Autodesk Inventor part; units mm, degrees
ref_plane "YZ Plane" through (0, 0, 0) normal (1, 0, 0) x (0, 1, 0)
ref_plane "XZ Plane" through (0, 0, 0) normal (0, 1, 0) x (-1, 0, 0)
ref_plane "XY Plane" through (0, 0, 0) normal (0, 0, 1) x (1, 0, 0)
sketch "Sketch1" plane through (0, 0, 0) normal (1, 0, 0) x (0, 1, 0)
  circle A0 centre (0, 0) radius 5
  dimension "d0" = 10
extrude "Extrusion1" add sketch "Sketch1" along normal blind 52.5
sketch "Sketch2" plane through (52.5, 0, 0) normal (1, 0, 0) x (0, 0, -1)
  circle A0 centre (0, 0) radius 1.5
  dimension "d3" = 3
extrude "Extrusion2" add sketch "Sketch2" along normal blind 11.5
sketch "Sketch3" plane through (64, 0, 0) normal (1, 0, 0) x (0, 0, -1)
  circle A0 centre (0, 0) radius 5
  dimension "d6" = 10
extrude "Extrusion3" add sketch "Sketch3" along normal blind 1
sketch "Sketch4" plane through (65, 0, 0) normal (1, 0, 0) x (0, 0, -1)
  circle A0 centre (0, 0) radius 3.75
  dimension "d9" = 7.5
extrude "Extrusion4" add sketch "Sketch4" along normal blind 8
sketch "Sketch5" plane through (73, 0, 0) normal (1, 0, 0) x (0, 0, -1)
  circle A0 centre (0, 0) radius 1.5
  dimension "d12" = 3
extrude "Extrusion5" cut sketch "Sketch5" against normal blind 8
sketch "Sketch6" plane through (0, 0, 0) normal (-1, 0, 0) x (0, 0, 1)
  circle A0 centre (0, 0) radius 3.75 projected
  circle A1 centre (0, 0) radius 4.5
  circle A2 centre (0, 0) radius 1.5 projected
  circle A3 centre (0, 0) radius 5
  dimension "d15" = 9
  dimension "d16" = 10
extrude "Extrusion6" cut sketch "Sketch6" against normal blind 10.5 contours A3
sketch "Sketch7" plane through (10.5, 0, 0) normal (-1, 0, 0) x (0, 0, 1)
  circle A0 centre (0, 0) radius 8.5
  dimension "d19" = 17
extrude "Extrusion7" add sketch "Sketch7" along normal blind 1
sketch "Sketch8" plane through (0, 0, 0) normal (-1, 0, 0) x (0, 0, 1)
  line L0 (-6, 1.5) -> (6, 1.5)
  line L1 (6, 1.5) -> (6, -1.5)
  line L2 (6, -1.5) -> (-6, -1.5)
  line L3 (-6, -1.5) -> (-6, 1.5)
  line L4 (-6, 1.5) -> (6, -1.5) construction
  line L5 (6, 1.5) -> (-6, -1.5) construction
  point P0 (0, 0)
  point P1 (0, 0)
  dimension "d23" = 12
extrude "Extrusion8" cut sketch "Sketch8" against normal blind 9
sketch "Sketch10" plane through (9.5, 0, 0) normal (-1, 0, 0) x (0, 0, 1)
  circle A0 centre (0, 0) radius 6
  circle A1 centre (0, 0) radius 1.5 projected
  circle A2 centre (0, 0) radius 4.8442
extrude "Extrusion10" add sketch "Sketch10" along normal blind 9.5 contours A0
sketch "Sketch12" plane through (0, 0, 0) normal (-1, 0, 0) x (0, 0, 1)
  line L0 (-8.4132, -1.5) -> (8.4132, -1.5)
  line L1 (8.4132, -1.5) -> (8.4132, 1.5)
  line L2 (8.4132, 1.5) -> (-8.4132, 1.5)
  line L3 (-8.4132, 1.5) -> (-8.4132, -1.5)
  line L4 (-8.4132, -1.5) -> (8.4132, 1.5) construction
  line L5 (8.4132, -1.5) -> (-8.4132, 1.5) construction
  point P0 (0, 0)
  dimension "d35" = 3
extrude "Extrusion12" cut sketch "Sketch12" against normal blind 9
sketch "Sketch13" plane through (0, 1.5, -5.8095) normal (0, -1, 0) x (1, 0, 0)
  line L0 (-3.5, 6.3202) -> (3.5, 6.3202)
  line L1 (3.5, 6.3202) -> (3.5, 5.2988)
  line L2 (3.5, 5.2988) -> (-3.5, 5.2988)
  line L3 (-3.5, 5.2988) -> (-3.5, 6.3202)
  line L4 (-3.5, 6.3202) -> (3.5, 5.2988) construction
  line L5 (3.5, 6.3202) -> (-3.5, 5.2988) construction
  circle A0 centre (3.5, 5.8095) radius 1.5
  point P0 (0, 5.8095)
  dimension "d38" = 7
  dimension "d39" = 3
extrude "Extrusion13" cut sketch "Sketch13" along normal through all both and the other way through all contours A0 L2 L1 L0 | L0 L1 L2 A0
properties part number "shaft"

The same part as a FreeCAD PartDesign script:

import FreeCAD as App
import Part
import Sketcher
from FreeCAD import Vector
Q = App.Units.Quantity


def add_polygon(sketch, points):
    """Adds a closed chain of lines whose ends are joined by coincident constraints."""
    first, n = sketch.GeometryCount, len(points)
    for a, b in zip(points, points[1:] + points[:1]):
        sketch.addGeometry(Part.LineSegment(App.Vector(*a, 0), App.Vector(*b, 0)), False)
    for i in range(n):
        sketch.addConstraint(Sketcher.Constraint("Coincident", first + i, 2, first + (i + 1) % n, 1))

doc = App.newDocument("Part")
body = doc.addObject("PartDesign::Body", "Body")

sketch1 = body.newObject("Sketcher::SketchObject", "Sketch")
sketch1.AttachmentSupport = (doc.getObject("YZ_Plane"), [""])
sketch1.MapMode = "FlatFace"
sketch1.addGeometry(Part.Circle(Vector(0, 0, 0), Vector(0, 0, 1), 5), False)
sketch1.addConstraint(Sketcher.Constraint("Coincident", 0, 3, -1, 1))
sketch1.addConstraint(Sketcher.Constraint("Diameter", 0, Q("10 mm")))
pad1 = body.newObject("PartDesign::Pad", "Pad")
pad1.Profile = sketch1
pad1.Length = 52.5

sketch2 = body.newObject("Sketcher::SketchObject", "Sketch001")
sketch2.AttachmentSupport = (doc.getObject("YZ_Plane"), [""])
sketch2.MapMode = "FlatFace"
sketch2.AttachmentOffset = App.Placement(Vector(0, 0, 52.5), App.Rotation())
sketch2.addGeometry(Part.Circle(Vector(0, 0, 0), Vector(0, 0, 1), 1.5), False)
sketch2.addConstraint(Sketcher.Constraint("Coincident", 0, 3, -1, 1))
sketch2.addConstraint(Sketcher.Constraint("Diameter", 0, Q("3 mm")))
pad2 = body.newObject("PartDesign::Pad", "Pad001")
pad2.Profile = sketch2
pad2.Length = 11.5

sketch3 = body.newObject("Sketcher::SketchObject", "Sketch002")
sketch3.AttachmentSupport = (doc.getObject("YZ_Plane"), [""])
sketch3.MapMode = "FlatFace"
sketch3.AttachmentOffset = App.Placement(Vector(0, 0, 64), App.Rotation())
sketch3.addGeometry(Part.Circle(Vector(0, 0, 0), Vector(0, 0, 1), 5), False)
sketch3.addConstraint(Sketcher.Constraint("Coincident", 0, 3, -1, 1))
sketch3.addConstraint(Sketcher.Constraint("Diameter", 0, Q("10 mm")))
pad3 = body.newObject("PartDesign::Pad", "Pad002")
pad3.Profile = sketch3
pad3.Length = 1

sketch4 = body.newObject("Sketcher::SketchObject", "Sketch003")
sketch4.AttachmentSupport = (doc.getObject("YZ_Plane"), [""])
sketch4.MapMode = "FlatFace"
sketch4.AttachmentOffset = App.Placement(Vector(0, 0, 65), App.Rotation())
sketch4.addGeometry(Part.Circle(Vector(0, 0, 0), Vector(0, 0, 1), 3.75), False)
sketch4.addConstraint(Sketcher.Constraint("Coincident", 0, 3, -1, 1))
sketch4.addConstraint(Sketcher.Constraint("Diameter", 0, Q("7.5 mm")))
pad4 = body.newObject("PartDesign::Pad", "Pad003")
pad4.Profile = sketch4
pad4.Length = 8

sketch5 = body.newObject("Sketcher::SketchObject", "Sketch004")
sketch5.AttachmentSupport = (doc.getObject("YZ_Plane"), [""])
sketch5.MapMode = "FlatFace"
sketch5.AttachmentOffset = App.Placement(Vector(0, 0, 73), App.Rotation())
sketch5.addGeometry(Part.Circle(Vector(0, 0, 0), Vector(0, 0, 1), 1.5), False)
sketch5.addConstraint(Sketcher.Constraint("Coincident", 0, 3, -1, 1))
sketch5.addConstraint(Sketcher.Constraint("Diameter", 0, Q("3 mm")))
pocket1 = body.newObject("PartDesign::Pocket", "Pocket")
pocket1.Profile = sketch5
pocket1.Length = 8

sketch6 = body.newObject("Sketcher::SketchObject", "Sketch005")
sketch6.AttachmentSupport = (doc.getObject("YZ_Plane"), [""])
sketch6.MapMode = "FlatFace"
sketch6.addGeometry(Part.Circle(Vector(0, 0, 0), Vector(0, 0, 1), 5), False)
sketch6.addGeometry(Part.Circle(Vector(0, 0, 0), Vector(0, 0, 1), 4.5), False)
sketch6.addConstraint(Sketcher.Constraint("Coincident", 0, 3, -1, 1))
sketch6.addConstraint(Sketcher.Constraint("Coincident", 1, 3, -1, 1))
sketch6.addConstraint(Sketcher.Constraint("Diameter", 0, Q("10 mm")))
sketch6.addConstraint(Sketcher.Constraint("Diameter", 1, Q("9 mm")))
pocket2 = body.newObject("PartDesign::Pocket", "Pocket001")
pocket2.Profile = sketch6
pocket2.Length = 10.5
pocket2.Reversed = True

sketch7 = body.newObject("Sketcher::SketchObject", "Sketch006")
sketch7.AttachmentSupport = (doc.getObject("YZ_Plane"), [""])
sketch7.MapMode = "FlatFace"
sketch7.AttachmentOffset = App.Placement(Vector(0, 0, 10.5), App.Rotation())
sketch7.addGeometry(Part.Circle(Vector(0, 0, 0), Vector(0, 0, 1), 8.5), False)
sketch7.addConstraint(Sketcher.Constraint("Coincident", 0, 3, -1, 1))
sketch7.addConstraint(Sketcher.Constraint("Diameter", 0, Q("17 mm")))
pad5 = body.newObject("PartDesign::Pad", "Pad004")
pad5.Profile = sketch7
pad5.Length = 1
pad5.Reversed = True

sketch8 = body.newObject("Sketcher::SketchObject", "Sketch007")
sketch8.AttachmentSupport = (doc.getObject("YZ_Plane"), [""])
sketch8.MapMode = "FlatFace"
add_polygon(sketch8, [(1.5, 6), (1.5, -6), (-1.5, -6), (-1.5, 6)])
sketch8.addConstraint(Sketcher.Constraint("Vertical", 0))
sketch8.addConstraint(Sketcher.Constraint("Horizontal", 1))
sketch8.addConstraint(Sketcher.Constraint("Vertical", 2))
sketch8.addConstraint(Sketcher.Constraint("Horizontal", 3))
sketch8.addConstraint(Sketcher.Constraint("Symmetric", 0, 2, 2, 2, -1, 1))
sketch8.addConstraint(Sketcher.Constraint("DistanceY", 0, 2, 0, 1, Q("12 mm")))
sketch8.addConstraint(Sketcher.Constraint("DistanceX", 1, 2, 1, 1, Q("3 mm")))
pocket3 = body.newObject("PartDesign::Pocket", "Pocket002")
pocket3.Profile = sketch8
pocket3.Length = 9
pocket3.Reversed = True

sketch9 = body.newObject("Sketcher::SketchObject", "Sketch008")
sketch9.AttachmentSupport = (doc.getObject("YZ_Plane"), [""])
sketch9.MapMode = "FlatFace"
sketch9.AttachmentOffset = App.Placement(Vector(0, 0, 9.5), App.Rotation())
sketch9.addGeometry(Part.Circle(Vector(0, 0, 0), Vector(0, 0, 1), 6), False)
sketch9.addGeometry(Part.Circle(Vector(0, 0, 0), Vector(0, 0, 1), 4.8442), False)
sketch9.addConstraint(Sketcher.Constraint("Coincident", 0, 3, -1, 1))
sketch9.addConstraint(Sketcher.Constraint("Coincident", 1, 3, -1, 1))
sketch9.addConstraint(Sketcher.Constraint("Diameter", 0, Q("12 mm")))
sketch9.addConstraint(Sketcher.Constraint("Diameter", 1, Q("9.6884 mm")))
pad6 = body.newObject("PartDesign::Pad", "Pad005")
pad6.Profile = sketch9
pad6.Length = 9.5
pad6.Reversed = True

sketch10 = body.newObject("Sketcher::SketchObject", "Sketch009")
sketch10.AttachmentSupport = (doc.getObject("YZ_Plane"), [""])
sketch10.MapMode = "FlatFace"
add_polygon(sketch10, [(1.5, -8.4132), (-1.5, -8.4132), (-1.5, 8.4132), (1.5, 8.4132)])
sketch10.addConstraint(Sketcher.Constraint("Horizontal", 0))
sketch10.addConstraint(Sketcher.Constraint("Vertical", 1))
sketch10.addConstraint(Sketcher.Constraint("Horizontal", 2))
sketch10.addConstraint(Sketcher.Constraint("Vertical", 3))
sketch10.addConstraint(Sketcher.Constraint("Symmetric", 0, 2, 2, 2, -1, 1))
sketch10.addConstraint(Sketcher.Constraint("DistanceX", 0, 2, 0, 1, Q("3 mm")))
sketch10.addConstraint(Sketcher.Constraint("DistanceY", 1, 1, 1, 2, Q("16.8264 mm")))
pocket4 = body.newObject("PartDesign::Pocket", "Pocket003")
pocket4.Profile = sketch10
pocket4.Length = 9
pocket4.Reversed = True

sketch11 = body.newObject("Sketcher::SketchObject", "Sketch010")
sketch11.AttachmentSupport = (doc.getObject("XZ_Plane"), [""])
sketch11.MapMode = "FlatFace"
sketch11.AttachmentOffset = App.Placement(Vector(0, 0, -1.5), App.Rotation())
sketch11.addGeometry(Part.Circle(Vector(3.5, 0, 0), Vector(0, 0, 1), 1.5), False)
sketch11.addConstraint(Sketcher.Constraint("PointOnObject", 0, 3, -1))
sketch11.addConstraint(Sketcher.Constraint("Diameter", 0, Q("3 mm")))
sketch11.addConstraint(Sketcher.Constraint("DistanceX", -1, 1, 0, 3, Q("3.5 mm")))
pocket5 = body.newObject("PartDesign::Pocket", "Pocket004")
pocket5.Profile = sketch11
pocket5.Type = "ThroughAll"
pocket5.Midplane = True

doc.recompute()
